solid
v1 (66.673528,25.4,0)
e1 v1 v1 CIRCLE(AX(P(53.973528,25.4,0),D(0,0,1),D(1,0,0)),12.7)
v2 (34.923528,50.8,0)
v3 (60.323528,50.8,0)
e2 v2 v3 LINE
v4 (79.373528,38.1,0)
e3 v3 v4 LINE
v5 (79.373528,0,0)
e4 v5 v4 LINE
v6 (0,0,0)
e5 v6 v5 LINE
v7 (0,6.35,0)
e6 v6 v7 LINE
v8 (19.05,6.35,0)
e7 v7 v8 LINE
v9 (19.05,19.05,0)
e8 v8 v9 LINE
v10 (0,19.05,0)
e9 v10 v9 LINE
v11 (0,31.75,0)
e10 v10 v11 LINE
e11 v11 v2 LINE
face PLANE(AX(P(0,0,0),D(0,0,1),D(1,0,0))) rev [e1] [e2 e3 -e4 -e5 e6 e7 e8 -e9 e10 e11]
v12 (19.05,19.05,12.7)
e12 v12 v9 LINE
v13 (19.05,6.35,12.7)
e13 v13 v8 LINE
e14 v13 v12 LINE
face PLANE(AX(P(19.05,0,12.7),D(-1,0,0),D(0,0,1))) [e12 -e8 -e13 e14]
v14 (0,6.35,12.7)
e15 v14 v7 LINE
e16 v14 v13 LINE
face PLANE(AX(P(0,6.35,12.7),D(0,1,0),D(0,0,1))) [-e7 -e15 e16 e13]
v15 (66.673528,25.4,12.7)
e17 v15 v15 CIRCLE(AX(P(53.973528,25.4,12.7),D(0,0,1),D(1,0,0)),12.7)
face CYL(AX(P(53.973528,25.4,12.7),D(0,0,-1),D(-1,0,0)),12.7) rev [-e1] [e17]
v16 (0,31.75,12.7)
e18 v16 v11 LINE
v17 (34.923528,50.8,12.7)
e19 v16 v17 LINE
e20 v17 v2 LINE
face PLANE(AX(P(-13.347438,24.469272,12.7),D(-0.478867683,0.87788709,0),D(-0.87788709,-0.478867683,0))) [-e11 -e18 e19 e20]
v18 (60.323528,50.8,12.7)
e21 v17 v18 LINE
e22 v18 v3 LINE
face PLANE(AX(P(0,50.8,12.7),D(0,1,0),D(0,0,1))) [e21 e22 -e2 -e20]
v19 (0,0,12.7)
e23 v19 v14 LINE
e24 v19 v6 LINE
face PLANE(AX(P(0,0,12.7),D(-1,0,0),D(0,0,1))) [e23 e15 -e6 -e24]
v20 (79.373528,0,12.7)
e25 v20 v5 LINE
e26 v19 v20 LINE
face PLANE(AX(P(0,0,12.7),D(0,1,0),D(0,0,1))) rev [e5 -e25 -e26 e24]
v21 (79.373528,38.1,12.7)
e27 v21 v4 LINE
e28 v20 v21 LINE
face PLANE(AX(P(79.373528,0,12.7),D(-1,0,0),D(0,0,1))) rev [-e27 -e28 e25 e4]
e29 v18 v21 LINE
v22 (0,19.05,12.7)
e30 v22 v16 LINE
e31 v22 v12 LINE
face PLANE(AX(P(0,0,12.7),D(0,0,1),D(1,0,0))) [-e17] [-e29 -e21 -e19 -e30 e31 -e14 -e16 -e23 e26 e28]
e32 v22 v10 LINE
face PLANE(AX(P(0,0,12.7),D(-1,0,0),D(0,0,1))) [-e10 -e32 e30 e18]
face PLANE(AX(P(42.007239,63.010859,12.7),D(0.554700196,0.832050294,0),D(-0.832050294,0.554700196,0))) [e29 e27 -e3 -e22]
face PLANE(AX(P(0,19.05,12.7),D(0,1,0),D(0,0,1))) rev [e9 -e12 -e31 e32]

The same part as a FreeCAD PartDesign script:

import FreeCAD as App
import Part
import Sketcher

V = App.Vector
Q = App.Units.Quantity


def add_polygon(sketch, points):
    """Adds a closed chain of lines whose ends are joined by coincident constraints."""
    first, n = sketch.GeometryCount, len(points)
    for a, b in zip(points, points[1:] + points[:1]):
        sketch.addGeometry(Part.LineSegment(App.Vector(*a, 0), App.Vector(*b, 0)), False)
    for i in range(n):
        sketch.addConstraint(Sketcher.Constraint("Coincident", first + i, 2, first + (i + 1) % n, 1))

doc = App.newDocument("Part")
body = doc.addObject("PartDesign::Body", "Body")

sketch1 = body.newObject("Sketcher::SketchObject", "Sketch")
sketch1.AttachmentSupport = (doc.getObject("XY_Plane"), [""])
sketch1.MapMode = "FlatFace"
add_polygon(sketch1, [(79, 38), (60, 51), (35, 51), (0, 32), (0, 19), (19, 19), (19, 6), (0, 6), (0, 0), (79, 0)])
sketch1.addGeometry(Part.Circle(V(54, 25, 0), V(0, 0, 1), 13), False)
sketch1.addConstraint([
    Sketcher.Constraint("Horizontal", 1),
    Sketcher.Constraint("Vertical", 3),
    Sketcher.Constraint("Horizontal", 4),
    Sketcher.Constraint("Vertical", 5),
    Sketcher.Constraint("Horizontal", 6),
    Sketcher.Constraint("Vertical", 7),
    Sketcher.Constraint("Horizontal", 8),
    Sketcher.Constraint("Vertical", 9),
    Sketcher.Constraint("Coincident", 7, 2, -1, 1),
    Sketcher.Constraint("PointOnObject", 2, 2, -2),
    Sketcher.Constraint("Equal", 3, 5),
    Sketcher.Constraint("Diameter", 10, Q("1 in")),
    Sketcher.Constraint("DistanceX", 1, 2, 1, 1, Q("1 in")),
    Sketcher.Constraint("DistanceY", 3, 2, 3, 1, Q("0.5 in")),
    Sketcher.Constraint("DistanceY", 9, 1, 9, 2, Q("1.5 in")),
    Sketcher.Constraint("DistanceY", -1, 1, 10, 3, Q("1 in")),
    Sketcher.Constraint("DistanceY", -1, 1, 0, 2, Q("2 in")),
    Sketcher.Constraint("DistanceX", 10, 3, 8, 2, Q("1 in")),
    Sketcher.Constraint("DistanceX", 4, 1, 4, 2, Q("0.75 in")),
    Sketcher.Constraint("DistanceY", 7, 2, 7, 1, Q("0.25 in")),
    Sketcher.Constraint("DistanceX", 10, 3, 0, 2, Q("0.25 in")),
    Sketcher.Constraint("DistanceX", 8, 1, 8, 2, 79.373528),
])
pad1 = body.newObject("PartDesign::Pad", "Pad")
pad1.Profile = sketch1
pad1.Length = Q("0.5 in")

doc.recompute()
